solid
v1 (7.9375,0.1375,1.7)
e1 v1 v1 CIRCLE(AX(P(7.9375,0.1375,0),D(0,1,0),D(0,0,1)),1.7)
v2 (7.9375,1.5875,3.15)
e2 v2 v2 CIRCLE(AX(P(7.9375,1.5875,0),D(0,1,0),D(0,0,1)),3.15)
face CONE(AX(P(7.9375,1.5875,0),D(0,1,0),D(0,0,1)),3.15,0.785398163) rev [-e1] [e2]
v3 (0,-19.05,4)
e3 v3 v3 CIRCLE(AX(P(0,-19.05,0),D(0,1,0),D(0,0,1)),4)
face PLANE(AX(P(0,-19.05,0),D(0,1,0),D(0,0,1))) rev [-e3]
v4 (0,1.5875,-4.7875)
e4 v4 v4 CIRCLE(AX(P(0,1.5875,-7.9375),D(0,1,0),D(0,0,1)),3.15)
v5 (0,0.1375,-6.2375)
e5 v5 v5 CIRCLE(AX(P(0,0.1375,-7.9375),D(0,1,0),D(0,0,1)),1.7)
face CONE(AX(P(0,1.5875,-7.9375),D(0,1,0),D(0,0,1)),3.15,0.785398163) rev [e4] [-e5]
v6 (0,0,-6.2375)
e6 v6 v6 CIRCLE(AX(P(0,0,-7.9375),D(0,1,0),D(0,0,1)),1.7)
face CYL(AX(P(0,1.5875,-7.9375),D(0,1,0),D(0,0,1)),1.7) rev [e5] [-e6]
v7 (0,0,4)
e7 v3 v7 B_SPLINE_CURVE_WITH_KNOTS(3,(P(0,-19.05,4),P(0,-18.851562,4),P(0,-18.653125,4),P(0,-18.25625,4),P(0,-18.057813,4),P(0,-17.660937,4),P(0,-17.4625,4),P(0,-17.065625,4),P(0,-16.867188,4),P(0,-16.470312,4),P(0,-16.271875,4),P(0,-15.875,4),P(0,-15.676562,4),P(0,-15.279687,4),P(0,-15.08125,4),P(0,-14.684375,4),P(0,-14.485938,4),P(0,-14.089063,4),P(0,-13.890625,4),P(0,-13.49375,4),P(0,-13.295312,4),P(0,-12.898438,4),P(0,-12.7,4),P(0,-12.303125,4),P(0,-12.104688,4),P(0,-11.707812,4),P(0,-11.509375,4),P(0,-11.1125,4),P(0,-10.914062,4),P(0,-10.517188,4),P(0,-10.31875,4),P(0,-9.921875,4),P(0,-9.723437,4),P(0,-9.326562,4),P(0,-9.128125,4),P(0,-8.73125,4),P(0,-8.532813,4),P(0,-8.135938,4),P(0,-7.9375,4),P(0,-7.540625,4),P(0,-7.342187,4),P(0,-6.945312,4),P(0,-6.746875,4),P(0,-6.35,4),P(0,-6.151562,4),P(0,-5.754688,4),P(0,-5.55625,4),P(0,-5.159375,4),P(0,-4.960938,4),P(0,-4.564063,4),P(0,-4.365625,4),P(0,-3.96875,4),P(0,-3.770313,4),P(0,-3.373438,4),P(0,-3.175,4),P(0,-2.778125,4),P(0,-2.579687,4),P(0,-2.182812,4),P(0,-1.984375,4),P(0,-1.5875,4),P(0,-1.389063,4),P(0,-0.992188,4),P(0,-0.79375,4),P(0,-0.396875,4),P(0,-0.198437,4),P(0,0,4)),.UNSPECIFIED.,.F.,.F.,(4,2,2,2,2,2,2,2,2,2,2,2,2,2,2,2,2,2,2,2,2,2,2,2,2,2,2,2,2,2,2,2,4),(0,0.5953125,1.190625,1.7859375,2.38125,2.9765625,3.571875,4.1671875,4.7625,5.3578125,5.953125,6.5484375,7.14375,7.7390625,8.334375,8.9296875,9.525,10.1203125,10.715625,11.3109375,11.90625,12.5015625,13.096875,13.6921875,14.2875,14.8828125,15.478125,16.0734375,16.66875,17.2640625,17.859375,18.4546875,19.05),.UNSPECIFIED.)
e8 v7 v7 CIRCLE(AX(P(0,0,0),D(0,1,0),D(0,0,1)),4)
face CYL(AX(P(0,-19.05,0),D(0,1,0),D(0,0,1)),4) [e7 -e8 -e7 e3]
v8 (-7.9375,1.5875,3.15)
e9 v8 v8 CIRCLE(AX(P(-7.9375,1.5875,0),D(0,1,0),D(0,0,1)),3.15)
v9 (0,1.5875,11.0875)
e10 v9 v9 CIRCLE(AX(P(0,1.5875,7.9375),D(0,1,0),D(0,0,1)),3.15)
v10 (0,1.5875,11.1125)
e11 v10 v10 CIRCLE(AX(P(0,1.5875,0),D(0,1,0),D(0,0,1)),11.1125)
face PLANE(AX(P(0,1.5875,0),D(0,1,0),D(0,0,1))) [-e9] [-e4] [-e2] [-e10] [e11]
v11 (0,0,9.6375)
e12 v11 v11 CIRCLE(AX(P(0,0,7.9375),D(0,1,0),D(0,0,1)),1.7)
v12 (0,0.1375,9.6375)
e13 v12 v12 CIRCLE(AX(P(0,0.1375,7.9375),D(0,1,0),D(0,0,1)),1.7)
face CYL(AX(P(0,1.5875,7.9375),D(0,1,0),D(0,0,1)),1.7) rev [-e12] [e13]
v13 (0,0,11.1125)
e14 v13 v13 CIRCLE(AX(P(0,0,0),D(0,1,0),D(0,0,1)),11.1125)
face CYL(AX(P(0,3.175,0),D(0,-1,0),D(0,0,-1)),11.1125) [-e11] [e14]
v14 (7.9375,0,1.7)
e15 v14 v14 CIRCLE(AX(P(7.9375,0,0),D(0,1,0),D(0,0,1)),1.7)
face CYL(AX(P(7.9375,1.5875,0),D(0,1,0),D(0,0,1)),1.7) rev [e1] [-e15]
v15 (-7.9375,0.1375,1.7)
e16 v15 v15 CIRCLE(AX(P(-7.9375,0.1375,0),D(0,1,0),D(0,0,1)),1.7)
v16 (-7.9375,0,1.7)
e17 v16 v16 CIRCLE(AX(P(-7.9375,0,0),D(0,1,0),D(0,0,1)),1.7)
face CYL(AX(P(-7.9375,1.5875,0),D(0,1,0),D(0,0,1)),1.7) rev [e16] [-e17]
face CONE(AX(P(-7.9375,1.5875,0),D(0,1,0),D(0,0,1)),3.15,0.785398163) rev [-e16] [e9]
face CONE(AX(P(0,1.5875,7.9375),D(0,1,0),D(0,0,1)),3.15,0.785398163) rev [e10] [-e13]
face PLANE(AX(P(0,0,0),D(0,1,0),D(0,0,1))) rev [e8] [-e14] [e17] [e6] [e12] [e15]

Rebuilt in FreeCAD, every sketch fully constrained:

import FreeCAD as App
import Part
import Sketcher
Q = App.Units.Quantity


def add_polygon(sketch, points):
    """Adds a closed chain of lines whose ends are joined by coincident constraints."""
    first, n = sketch.GeometryCount, len(points)
    for a, b in zip(points, points[1:] + points[:1]):
        sketch.addGeometry(Part.LineSegment(App.Vector(*a, 0), App.Vector(*b, 0)), False)
    for i in range(n):
        sketch.addConstraint(Sketcher.Constraint("Coincident", first + i, 2, first + (i + 1) % n, 1))

doc = App.newDocument("Part")
body = doc.addObject("PartDesign::Body", "Body")

sketch1 = doc.addObject("Sketcher::SketchObject", "Sketch")
body.addObject(sketch1)
sketch1.AttachmentSupport = (doc.XZ_Plane, [""])
sketch1.MapMode = "FlatFace"
sketch1.addGeometry(Part.Circle(App.Vector(0, 0, 0), App.Vector(0, 0, 1), 4), False)
sketch1.addConstraint([
    Sketcher.Constraint("Coincident", 0, 3, -1, 1),
    Sketcher.Constraint("Diameter", 0, Q("8 mm")),
])
pad1 = doc.addObject("PartDesign::Pad", "Pad")
body.addObject(pad1)
pad1.Profile = sketch1
pad1.Length = Q("0.75 in")

sketch2 = doc.addObject("Sketcher::SketchObject", "Sketch001")
body.addObject(sketch2)
sketch2.AttachmentSupport = (doc.XZ_Plane, [""])
sketch2.MapMode = "FlatFace"
sketch2.addGeometry(Part.Circle(App.Vector(0, 0, 0), App.Vector(0, 0, 1), 11.1125), False)
sketch2.addConstraint([
    Sketcher.Constraint("Coincident", 0, 3, -1, 1),
    Sketcher.Constraint("Diameter", 0, Q("0.875 in")),
])
pad2 = doc.addObject("PartDesign::Pad", "Pad001")
body.addObject(pad2)
pad2.Profile = sketch2
pad2.Length = Q("0.125 in")
pad2.Reversed = True

sketch3 = doc.addObject("Sketcher::SketchObject", "Sketch002")
body.addObject(sketch3)
sketch3.AttachmentSupport = (doc.XZ_Plane, [""])
sketch3.MapMode = "FlatFace"
sketch3.AttachmentOffset = App.Placement(App.Vector(0, 0, -0.0625 * 25.4), App.Rotation())
sketch3.addGeometry(Part.Circle(App.Vector(0, 0, 0), App.Vector(0, 0, 1), 11.1125), False)
sketch3.addConstraint([
    Sketcher.Constraint("Coincident", 0, 3, -1, 1),
    Sketcher.Constraint("Diameter", 0, Q("0.875 in")),
])
pocket1 = doc.addObject("PartDesign::Pocket", "Pocket")
body.addObject(pocket1)
pocket1.Profile = sketch3
pocket1.Length = Q("0.0625 in")

sketch4 = doc.addObject("Sketcher::SketchObject", "Sketch003")
body.addObject(sketch4)
sketch4.AttachmentSupport = (doc.YZ_Plane, [""])
sketch4.MapMode = "FlatFace"
sketch4.AttachmentOffset = App.Placement(App.Vector(0, 0, 0.3125 * 25.4), App.Rotation())
add_polygon(sketch4, [(0, 0), (1.5875, 0), (1.5875, 3.15), (0.1375, 1.7), (0, 1.7)])
sketch4.addConstraint([
    Sketcher.Constraint("Horizontal", 0),
    Sketcher.Constraint("Vertical", 1),
    Sketcher.Constraint("Horizontal", 3),
    Sketcher.Constraint("Vertical", 4),
    Sketcher.Constraint("Coincident", 4, 2, -1, 1),
    Sketcher.Constraint("Angle", 2, Q("-135 deg")),
    Sketcher.Constraint("DistanceX", 0, 1, 0, 2, Q("0.0625 in")),
    Sketcher.Constraint("DistanceX", 3, 2, 3, 1, Q("0.1375 mm")),
    Sketcher.Constraint("DistanceY", 1, 1, 1, 2, Q("3.15 mm")),
])
groove = doc.addObject("PartDesign::Groove", "Groove")
body.addObject(groove)
groove.Profile = sketch4
groove.ReferenceAxis = (sketch4, ["H_Axis"])
groove.Angle = 360
doc.recompute()

datumline = doc.addObject("PartDesign::Line", "DatumLine")
body.addObject(datumline)
datumline.Placement = App.Placement(App.Vector(0, 0, 0), App.Rotation(App.Vector(0, 0, 1), App.Vector(-0.707106781, 0, -0.707106781)))
linearpattern = doc.addObject("PartDesign::LinearPattern", "LinearPattern")
body.addObject(linearpattern)
linearpattern.Originals = [groove]
linearpattern.Direction = (datumline, [""])
linearpattern.Mode = "offset"
linearpattern.Offset = 11.22532
linearpattern.Occurrences = 2
body.Tip = linearpattern
doc.recompute()

datumline2 = doc.addObject("PartDesign::Line", "DatumLine001")
body.addObject(datumline2)
datumline2.Placement = App.Placement(App.Vector(0, 0, 0), App.Rotation(App.Vector(0, 0, 1), App.Vector(-0.707106781, 0, 0.707106781)))
linearpattern2 = doc.addObject("PartDesign::LinearPattern", "LinearPattern001")
body.addObject(linearpattern2)
linearpattern2.Originals = [groove]
linearpattern2.Direction = (datumline2, [""])
linearpattern2.Mode = "offset"
linearpattern2.Offset = 11.22532
linearpattern2.Occurrences = 2
body.Tip = linearpattern2
doc.recompute()

linearpattern3 = doc.addObject("PartDesign::LinearPattern", "LinearPattern002")
body.addObject(linearpattern3)
linearpattern3.Originals = [groove]
linearpattern3.Direction = (doc.X_Axis, [""])
linearpattern3.Mode = "offset"
linearpattern3.Offset = Q("0.625 in")
linearpattern3.Occurrences = 2
linearpattern3.Reversed = True
body.Tip = linearpattern3

doc.recompute()
